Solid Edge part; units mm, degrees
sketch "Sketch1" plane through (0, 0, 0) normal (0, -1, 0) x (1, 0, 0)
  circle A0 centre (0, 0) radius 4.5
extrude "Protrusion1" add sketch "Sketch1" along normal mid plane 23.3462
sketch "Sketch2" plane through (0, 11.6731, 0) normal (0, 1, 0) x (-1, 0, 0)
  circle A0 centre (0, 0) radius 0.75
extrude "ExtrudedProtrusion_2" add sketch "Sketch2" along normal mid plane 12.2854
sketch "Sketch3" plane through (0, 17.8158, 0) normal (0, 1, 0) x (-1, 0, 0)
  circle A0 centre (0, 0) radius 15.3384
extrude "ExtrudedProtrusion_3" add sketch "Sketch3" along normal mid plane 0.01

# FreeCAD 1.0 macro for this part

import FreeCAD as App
import Part
import Sketcher

V = App.Vector
Q = App.Units.Quantity

doc = App.newDocument("Part")
body = doc.addObject("PartDesign::Body", "Body")

sketch1 = body.newObject("Sketcher::SketchObject", "Sketch")
sketch1.AttachmentSupport = (doc.getObject("XZ_Plane"), [""])
sketch1.MapMode = "FlatFace"
sketch1.addGeometry(Part.Circle(V(0, 0, 0), V(0, 0, 1), 4.5), False)
sketch1.addConstraint(Sketcher.Constraint("Coincident", 0, 3, -1, 1))
sketch1.addConstraint(Sketcher.Constraint("Diameter", 0, Q("9 mm")))
pad1 = body.newObject("PartDesign::Pad", "Pad")
pad1.Profile = sketch1
pad1.Length = 23.3462
pad1.Midplane = True

sketch2 = body.newObject("Sketcher::SketchObject", "Sketch001")
sketch2.AttachmentSupport = (doc.getObject("XZ_Plane"), [""])
sketch2.MapMode = "FlatFace"
sketch2.AttachmentOffset = App.Placement(V(0, 0, -11.6731), App.Rotation())
sketch2.addGeometry(Part.Circle(V(0, 0, 0), V(0, 0, 1), 0.8), False)
sketch2.addConstraint(Sketcher.Constraint("Coincident", 0, 3, -1, 1))
sketch2.addConstraint(Sketcher.Constraint("Diameter", 0, Q("1.5 mm")))
pad2 = body.newObject("PartDesign::Pad", "Pad001")
pad2.Profile = sketch2
pad2.Length = 12.2854
pad2.Midplane = True

sketch3 = body.newObject("Sketcher::SketchObject", "Sketch002")
sketch3.AttachmentSupport = (doc.getObject("XZ_Plane"), [""])
sketch3.MapMode = "FlatFace"
sketch3.AttachmentOffset = App.Placement(V(0, 0, -17.8158), App.Rotation())
sketch3.addGeometry(Part.Circle(V(0, 0, 0), V(0, 0, 1), 15), False)
sketch3.addConstraint(Sketcher.Constraint("Coincident", 0, 3, -1, 1))
sketch3.addConstraint(Sketcher.Constraint("Diameter", 0, Q("30.6768 mm")))
pad3 = body.newObject("PartDesign::Pad", "Pad002")
pad3.Profile = sketch3
pad3.Length = 0.01
pad3.Midplane = True

doc.recompute()
